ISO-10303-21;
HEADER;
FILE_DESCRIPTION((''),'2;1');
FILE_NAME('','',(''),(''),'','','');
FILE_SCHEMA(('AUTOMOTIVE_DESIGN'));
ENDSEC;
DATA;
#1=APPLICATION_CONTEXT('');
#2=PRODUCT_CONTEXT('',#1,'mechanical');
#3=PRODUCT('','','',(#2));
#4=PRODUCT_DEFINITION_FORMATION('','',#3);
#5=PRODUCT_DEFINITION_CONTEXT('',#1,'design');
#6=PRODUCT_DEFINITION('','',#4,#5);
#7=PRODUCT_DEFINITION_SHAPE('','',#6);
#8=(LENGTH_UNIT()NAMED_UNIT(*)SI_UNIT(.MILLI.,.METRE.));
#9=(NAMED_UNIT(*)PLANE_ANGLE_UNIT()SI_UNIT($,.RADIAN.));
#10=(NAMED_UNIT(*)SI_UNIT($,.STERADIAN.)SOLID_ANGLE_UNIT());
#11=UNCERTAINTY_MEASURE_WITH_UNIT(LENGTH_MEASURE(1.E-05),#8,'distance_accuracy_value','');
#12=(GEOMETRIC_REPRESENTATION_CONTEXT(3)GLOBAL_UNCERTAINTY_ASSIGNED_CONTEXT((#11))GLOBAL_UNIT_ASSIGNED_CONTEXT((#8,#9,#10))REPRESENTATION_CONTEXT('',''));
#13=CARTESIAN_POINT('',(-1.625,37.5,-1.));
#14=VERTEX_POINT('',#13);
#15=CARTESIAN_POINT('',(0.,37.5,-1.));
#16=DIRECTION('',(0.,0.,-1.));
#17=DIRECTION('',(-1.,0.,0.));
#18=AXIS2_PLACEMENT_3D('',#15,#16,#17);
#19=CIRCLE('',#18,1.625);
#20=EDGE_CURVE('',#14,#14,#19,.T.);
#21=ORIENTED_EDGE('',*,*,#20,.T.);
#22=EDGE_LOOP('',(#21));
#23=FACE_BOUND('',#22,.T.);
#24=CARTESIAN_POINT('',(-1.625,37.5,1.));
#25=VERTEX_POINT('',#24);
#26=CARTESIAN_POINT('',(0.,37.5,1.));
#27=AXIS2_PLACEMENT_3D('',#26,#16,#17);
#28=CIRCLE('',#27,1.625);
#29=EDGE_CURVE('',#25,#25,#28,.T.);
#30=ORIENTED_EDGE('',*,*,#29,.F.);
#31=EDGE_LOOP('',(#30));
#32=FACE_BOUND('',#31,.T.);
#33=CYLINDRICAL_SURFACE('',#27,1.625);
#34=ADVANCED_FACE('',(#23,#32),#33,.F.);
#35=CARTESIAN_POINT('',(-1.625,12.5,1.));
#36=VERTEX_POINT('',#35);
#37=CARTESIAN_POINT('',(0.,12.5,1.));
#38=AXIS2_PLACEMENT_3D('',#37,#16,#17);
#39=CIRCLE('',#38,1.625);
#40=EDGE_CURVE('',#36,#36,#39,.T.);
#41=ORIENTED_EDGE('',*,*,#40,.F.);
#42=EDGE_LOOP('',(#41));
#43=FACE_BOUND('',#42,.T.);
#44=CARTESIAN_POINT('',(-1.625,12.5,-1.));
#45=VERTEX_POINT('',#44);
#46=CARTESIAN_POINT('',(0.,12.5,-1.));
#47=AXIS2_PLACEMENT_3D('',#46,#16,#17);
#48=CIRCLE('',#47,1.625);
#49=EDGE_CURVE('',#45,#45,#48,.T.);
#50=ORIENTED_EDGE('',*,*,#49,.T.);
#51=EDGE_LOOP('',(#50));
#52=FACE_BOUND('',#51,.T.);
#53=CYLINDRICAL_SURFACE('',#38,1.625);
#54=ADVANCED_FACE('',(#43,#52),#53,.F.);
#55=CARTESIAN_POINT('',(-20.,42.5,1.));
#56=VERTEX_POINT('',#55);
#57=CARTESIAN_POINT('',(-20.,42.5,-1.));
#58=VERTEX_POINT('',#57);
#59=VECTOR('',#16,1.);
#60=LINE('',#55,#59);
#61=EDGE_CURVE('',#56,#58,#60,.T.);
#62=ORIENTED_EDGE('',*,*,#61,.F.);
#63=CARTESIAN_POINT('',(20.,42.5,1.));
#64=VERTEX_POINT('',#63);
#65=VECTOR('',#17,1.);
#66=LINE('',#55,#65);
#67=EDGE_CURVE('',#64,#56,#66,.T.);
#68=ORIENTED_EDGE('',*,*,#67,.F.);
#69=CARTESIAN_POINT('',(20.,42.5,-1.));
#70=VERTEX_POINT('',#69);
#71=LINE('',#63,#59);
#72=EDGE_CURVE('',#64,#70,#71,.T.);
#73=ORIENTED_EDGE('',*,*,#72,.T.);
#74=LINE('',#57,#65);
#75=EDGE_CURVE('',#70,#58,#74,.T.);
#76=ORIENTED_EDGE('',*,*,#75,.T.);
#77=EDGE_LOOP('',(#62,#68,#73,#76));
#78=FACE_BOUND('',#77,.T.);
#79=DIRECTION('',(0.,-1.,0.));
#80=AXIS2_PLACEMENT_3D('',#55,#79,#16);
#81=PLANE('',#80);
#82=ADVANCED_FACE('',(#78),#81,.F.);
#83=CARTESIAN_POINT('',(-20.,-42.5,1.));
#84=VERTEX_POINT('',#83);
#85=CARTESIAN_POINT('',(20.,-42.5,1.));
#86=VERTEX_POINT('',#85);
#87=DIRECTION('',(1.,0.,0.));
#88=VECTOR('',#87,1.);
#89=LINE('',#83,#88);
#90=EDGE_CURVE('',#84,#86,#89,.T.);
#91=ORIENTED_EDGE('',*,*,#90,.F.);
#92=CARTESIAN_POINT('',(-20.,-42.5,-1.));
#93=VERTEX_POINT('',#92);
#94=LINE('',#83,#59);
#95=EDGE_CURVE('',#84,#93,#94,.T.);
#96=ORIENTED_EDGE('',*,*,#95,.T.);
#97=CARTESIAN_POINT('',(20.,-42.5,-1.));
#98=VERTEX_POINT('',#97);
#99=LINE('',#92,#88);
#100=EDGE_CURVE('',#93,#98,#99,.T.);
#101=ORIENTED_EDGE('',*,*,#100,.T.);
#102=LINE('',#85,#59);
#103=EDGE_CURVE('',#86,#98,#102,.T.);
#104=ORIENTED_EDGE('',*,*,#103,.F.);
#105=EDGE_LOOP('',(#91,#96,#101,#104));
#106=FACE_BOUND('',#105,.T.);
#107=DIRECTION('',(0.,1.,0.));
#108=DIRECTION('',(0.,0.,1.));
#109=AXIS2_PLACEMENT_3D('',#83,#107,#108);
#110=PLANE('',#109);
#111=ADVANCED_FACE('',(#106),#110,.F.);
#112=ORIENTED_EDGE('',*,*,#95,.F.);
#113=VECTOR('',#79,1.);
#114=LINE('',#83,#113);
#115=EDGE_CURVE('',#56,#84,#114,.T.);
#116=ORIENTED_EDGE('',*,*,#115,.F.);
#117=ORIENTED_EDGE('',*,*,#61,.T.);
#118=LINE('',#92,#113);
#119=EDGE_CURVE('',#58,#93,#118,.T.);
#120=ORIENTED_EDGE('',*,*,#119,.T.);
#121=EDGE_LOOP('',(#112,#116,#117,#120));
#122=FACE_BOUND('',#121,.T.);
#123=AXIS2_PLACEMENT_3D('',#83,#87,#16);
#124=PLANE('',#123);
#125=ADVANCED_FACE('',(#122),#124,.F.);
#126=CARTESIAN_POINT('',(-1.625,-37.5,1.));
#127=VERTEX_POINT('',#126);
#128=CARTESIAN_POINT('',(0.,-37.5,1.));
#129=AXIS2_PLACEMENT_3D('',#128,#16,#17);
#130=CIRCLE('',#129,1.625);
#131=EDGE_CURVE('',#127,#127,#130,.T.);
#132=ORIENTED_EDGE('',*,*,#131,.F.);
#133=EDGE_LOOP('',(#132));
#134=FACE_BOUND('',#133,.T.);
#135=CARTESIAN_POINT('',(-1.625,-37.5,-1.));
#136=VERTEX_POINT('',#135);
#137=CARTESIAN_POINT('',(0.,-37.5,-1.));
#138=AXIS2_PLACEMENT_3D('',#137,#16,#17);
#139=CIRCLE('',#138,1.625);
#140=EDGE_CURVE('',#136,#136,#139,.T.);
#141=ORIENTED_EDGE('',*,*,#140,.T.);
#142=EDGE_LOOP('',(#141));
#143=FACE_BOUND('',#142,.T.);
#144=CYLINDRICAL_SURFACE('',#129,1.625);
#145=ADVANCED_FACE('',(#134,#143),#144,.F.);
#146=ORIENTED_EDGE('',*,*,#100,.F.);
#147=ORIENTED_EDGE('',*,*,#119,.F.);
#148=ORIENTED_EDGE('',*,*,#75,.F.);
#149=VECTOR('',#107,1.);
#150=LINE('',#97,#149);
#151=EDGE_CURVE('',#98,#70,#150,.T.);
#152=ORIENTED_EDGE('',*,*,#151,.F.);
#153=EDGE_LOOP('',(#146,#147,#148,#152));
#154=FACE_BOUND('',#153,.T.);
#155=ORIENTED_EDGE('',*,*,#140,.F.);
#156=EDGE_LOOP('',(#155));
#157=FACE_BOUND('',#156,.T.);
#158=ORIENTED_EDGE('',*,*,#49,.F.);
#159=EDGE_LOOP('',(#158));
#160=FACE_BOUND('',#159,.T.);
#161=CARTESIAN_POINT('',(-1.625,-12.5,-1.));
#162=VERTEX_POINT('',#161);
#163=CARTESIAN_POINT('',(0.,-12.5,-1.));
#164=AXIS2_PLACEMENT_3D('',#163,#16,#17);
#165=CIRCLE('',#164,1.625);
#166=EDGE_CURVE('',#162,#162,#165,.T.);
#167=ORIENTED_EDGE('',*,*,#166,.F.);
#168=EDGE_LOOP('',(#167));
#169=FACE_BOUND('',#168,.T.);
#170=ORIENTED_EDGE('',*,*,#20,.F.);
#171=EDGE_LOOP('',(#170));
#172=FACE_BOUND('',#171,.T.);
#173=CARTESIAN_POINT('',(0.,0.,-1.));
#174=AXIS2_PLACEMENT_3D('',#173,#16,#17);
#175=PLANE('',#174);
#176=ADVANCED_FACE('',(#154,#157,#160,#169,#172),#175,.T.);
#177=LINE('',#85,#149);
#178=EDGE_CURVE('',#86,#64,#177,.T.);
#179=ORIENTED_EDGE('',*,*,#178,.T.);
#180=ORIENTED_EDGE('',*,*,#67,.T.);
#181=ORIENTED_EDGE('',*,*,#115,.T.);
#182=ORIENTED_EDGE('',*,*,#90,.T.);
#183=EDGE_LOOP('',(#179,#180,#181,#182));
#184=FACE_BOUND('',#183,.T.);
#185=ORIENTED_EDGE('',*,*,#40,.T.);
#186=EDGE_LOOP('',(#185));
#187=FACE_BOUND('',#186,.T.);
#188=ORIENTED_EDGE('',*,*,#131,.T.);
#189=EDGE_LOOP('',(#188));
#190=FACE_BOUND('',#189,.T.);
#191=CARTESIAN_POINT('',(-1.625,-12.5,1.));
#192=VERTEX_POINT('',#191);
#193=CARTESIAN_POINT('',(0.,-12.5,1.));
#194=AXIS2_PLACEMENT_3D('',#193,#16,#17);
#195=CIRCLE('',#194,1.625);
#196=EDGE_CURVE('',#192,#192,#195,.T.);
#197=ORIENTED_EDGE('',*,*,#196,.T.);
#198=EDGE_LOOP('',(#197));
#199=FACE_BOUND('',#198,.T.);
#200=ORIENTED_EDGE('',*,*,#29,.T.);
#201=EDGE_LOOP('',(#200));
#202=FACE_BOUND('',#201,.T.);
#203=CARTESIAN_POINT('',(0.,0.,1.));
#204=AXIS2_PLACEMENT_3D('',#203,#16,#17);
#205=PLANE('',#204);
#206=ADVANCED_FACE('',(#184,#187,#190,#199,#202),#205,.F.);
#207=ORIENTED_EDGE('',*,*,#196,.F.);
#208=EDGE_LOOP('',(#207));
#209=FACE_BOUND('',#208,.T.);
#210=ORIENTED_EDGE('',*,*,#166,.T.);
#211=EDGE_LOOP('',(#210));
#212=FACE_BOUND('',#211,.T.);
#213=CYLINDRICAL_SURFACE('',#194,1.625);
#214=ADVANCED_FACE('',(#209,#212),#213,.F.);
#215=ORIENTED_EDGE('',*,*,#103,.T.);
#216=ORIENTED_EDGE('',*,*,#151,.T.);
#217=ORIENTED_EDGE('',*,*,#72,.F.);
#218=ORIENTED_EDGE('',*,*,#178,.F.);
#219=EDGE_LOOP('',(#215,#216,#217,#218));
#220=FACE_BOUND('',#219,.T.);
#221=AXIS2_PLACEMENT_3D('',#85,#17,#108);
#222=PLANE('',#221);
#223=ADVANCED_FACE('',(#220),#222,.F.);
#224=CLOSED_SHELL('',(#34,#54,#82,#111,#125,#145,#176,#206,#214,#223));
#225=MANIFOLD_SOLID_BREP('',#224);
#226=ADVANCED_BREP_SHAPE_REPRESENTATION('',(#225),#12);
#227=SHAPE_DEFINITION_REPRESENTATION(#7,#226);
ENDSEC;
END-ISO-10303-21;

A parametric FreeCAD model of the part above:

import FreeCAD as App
import Part
import Sketcher

V = App.Vector

doc = App.newDocument("Part")
body = doc.addObject("PartDesign::Body", "Body")

# Sketch on XY plane
sketch1 = doc.addObject("Sketcher::SketchObject", "Sketch")
body.addObject(sketch1)
sketch1.AttachmentSupport = (doc.XY_Plane, [""])
sketch1.MapMode = "FlatFace"
sketch1.addGeometry(Part.LineSegment(V(-20, 42, 0), V(-20, -42, 0)), False)
sketch1.addGeometry(Part.LineSegment(V(-20, -42, 0), V(20, -42, 0)), False)
sketch1.addGeometry(Part.LineSegment(V(20, -42, 0), V(20, 42, 0)), False)
sketch1.addGeometry(Part.LineSegment(V(20, 42, 0), V(-20, 42, 0)), False)
sketch1.addConstraint(Sketcher.Constraint("Coincident", 0, 2, 1, 1))
sketch1.addConstraint(Sketcher.Constraint("Coincident", 1, 2, 2, 1))
sketch1.addConstraint(Sketcher.Constraint("Coincident", 2, 2, 3, 1))
sketch1.addConstraint(Sketcher.Constraint("Coincident", 3, 2, 0, 1))
sketch1.addConstraint(Sketcher.Constraint("Vertical", 0))
sketch1.addConstraint(Sketcher.Constraint("Horizontal", 1))
sketch1.addConstraint(Sketcher.Constraint("Vertical", 2))
sketch1.addConstraint(Sketcher.Constraint("Horizontal", 3))
sketch1.addConstraint(Sketcher.Constraint("Symmetric", 0, 2, 2, 2, -1, 1))
sketch1.addConstraint(Sketcher.Constraint("DistanceX", 1, 1, 1, 2, 40.0))
sketch1.addConstraint(Sketcher.Constraint("DistanceY", 0, 2, 0, 1, 85.0))
pad1 = doc.addObject("PartDesign::Pad", "Pad")
body.addObject(pad1)
pad1.Profile = sketch1
pad1.Length = 2
pad1.Midplane = True

# Sketch on XY plane
sketch2 = doc.addObject("Sketcher::SketchObject", "Sketch001")
body.addObject(sketch2)
sketch2.AttachmentSupport = (doc.XY_Plane, [""])
sketch2.MapMode = "FlatFace"
sketch2.AttachmentOffset = App.Placement(V(0, 0, -1), App.Rotation())
sketch2.addGeometry(Part.Circle(V(0, 37.5, 0), V(0, 0, 1), 1.6), False)
sketch2.addConstraint(Sketcher.Constraint("PointOnObject", 0, 3, -2))
sketch2.addConstraint(Sketcher.Constraint("Diameter", 0, 3.25))
sketch2.addConstraint(Sketcher.Constraint("DistanceY", -1, 1, 0, 3, 37.5))
pocket1 = doc.addObject("PartDesign::Pocket", "Pocket")
body.addObject(pocket1)
pocket1.Profile = sketch2
pocket1.Length = 2
pocket1.Reversed = True
doc.recompute()

linearpattern = doc.addObject("PartDesign::LinearPattern", "LinearPattern")
body.addObject(linearpattern)
linearpattern.Originals = [pocket1]
linearpattern.Direction = (doc.Y_Axis, [""])
linearpattern.Mode = "offset"
linearpattern.Offset = 25
linearpattern.Occurrences = 4
linearpattern.Reversed = True
body.Tip = linearpattern

doc.recompute()
